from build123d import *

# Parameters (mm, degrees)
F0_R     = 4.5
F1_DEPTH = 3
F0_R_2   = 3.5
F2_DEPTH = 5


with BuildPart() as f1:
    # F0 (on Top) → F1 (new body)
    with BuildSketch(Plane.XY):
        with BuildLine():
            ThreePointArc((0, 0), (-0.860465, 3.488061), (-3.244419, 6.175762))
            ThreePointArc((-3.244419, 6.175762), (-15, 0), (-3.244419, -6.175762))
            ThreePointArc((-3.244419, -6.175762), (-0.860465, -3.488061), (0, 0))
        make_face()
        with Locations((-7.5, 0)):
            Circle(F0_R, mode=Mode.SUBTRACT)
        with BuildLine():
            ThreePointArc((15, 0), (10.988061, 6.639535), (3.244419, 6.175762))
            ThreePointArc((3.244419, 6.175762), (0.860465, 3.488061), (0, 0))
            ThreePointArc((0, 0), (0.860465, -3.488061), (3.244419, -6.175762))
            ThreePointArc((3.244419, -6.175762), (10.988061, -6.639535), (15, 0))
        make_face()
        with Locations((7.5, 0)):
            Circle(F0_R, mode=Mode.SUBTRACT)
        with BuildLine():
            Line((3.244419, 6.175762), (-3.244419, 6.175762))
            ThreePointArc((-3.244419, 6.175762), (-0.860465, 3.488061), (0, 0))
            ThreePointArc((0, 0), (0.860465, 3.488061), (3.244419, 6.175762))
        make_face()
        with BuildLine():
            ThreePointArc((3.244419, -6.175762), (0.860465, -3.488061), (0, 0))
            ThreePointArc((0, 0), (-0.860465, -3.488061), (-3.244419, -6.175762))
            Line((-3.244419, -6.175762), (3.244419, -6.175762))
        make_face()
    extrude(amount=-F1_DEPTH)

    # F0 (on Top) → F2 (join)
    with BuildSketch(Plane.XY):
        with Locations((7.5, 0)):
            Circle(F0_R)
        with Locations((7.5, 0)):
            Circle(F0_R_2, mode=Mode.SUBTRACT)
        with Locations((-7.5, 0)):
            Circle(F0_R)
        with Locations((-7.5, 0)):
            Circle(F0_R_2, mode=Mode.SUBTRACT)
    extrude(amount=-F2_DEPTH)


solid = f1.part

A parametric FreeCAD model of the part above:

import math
import FreeCAD as App
import Part
import Sketcher

doc = App.newDocument("Part")
body = doc.addObject("PartDesign::Body", "Body")

# Sketch on XY plane
sketch1 = doc.addObject("Sketcher::SketchObject", "Sketch")
body.addObject(sketch1)
sketch1.AttachmentSupport = (doc.XY_Plane, [""])
sketch1.MapMode = "FlatFace"
sketch1.addGeometry([
    Part.ArcOfCircle(Part.Circle(App.Vector(7.499999, 0.000001, 0), App.Vector(0, 0, 1), 7.500001), math.radians(-124.56986), math.radians(-0.000006)),  # 0
    Part.ArcOfCircle(Part.Circle(App.Vector(7.499999, -0.000001, 0), App.Vector(0, 0, 1), 7.500001), math.radians(0.000006), math.radians(124.56986)),  # 1
    Part.LineSegment(App.Vector(3.244419, 6.175762, 0), App.Vector(-3.244419, 6.175762, 0)),  # 2
    Part.ArcOfCircle(Part.Circle(App.Vector(-7.5, 0, 0), App.Vector(0, 0, 1), 7.5), math.radians(55.430134), math.radians(304.569866)),  # 3
    Part.LineSegment(App.Vector(-3.244419, -6.175762, 0), App.Vector(3.244419, -6.175762, 0)),  # 4
    Part.Circle(App.Vector(-7.5, 0, 0), App.Vector(0, 0, 1), 4.5),  # 5
    Part.Circle(App.Vector(7.5, 0, 0), App.Vector(0, 0, 1), 4.5),  # 6
], False)
sketch1.addConstraint([
    Sketcher.Constraint("Tangent", 0, 2, 1, 1),
    Sketcher.Constraint("Coincident", 1, 2, 2, 1),
    Sketcher.Constraint("Coincident", 2, 2, 3, 1),
    Sketcher.Constraint("Coincident", 3, 2, 4, 1),
    Sketcher.Constraint("Coincident", 4, 2, 0, 1),
    Sketcher.Constraint("Horizontal", 2),
    Sketcher.Constraint("Horizontal", 4),
    Sketcher.Constraint("Coincident", 5, 3, 3, 3),
    Sketcher.Constraint("Coincident", 6, 3, 0, 3),
    Sketcher.Constraint("Equal", 0, 1),
    Sketcher.Constraint("Equal", 1, 3),
    Sketcher.Constraint("Equal", 5, 6),
    Sketcher.Constraint("Symmetric", 0, 3, 3, 3, -1, 1),
    Sketcher.Constraint("Symmetric", 2, 2, 3, 2, -1),
    Sketcher.Constraint("PointOnObject", 0, 2, -1),
    Sketcher.Constraint("Diameter", 5, 9.0),
    Sketcher.Constraint("Radius", 0, 7.500001),
    Sketcher.Constraint("DistanceX", -1, 1, 0, 2, 15.0),
    Sketcher.Constraint("DistanceX", 2, 2, 2, 1, 6.488838),
])
pad1 = doc.addObject("PartDesign::Pad", "Pad")
body.addObject(pad1)
pad1.Profile = sketch1
pad1.Length = 3
pad1.Reversed = True

# Sketch on XY plane
sketch2 = doc.addObject("Sketcher::SketchObject", "Sketch001")
body.addObject(sketch2)
sketch2.AttachmentSupport = (doc.XY_Plane, [""])
sketch2.MapMode = "FlatFace"
sketch2.addGeometry([
    Part.Circle(App.Vector(7.5, 0, 0), App.Vector(0, 0, 1), 4.5),
    Part.Circle(App.Vector(7.5, 0, 0), App.Vector(0, 0, 1), 3.5),
    Part.Circle(App.Vector(-7.5, 0, 0), App.Vector(0, 0, 1), 4.5),
    Part.Circle(App.Vector(-7.5, 0, 0), App.Vector(0, 0, 1), 3.5),
], False)
sketch2.addConstraint([
    Sketcher.Constraint("Coincident", 1, 3, 0, 3),
    Sketcher.Constraint("Coincident", 3, 3, 2, 3),
    Sketcher.Constraint("Equal", 0, 2),
    Sketcher.Constraint("Equal", 1, 3),
    Sketcher.Constraint("Symmetric", 0, 3, 2, 3, -1, 1),
    Sketcher.Constraint("PointOnObject", 0, 3, -1),
    Sketcher.Constraint("Diameter", 0, 9.0),
    Sketcher.Constraint("Diameter", 1, 7.0),
    Sketcher.Constraint("DistanceX", 2, 3, 0, 3, 15.0),
])
pad2 = doc.addObject("PartDesign::Pad", "Pad001")
body.addObject(pad2)
pad2.Profile = sketch2
pad2.Length = 5
pad2.Reversed = True

doc.recompute()
